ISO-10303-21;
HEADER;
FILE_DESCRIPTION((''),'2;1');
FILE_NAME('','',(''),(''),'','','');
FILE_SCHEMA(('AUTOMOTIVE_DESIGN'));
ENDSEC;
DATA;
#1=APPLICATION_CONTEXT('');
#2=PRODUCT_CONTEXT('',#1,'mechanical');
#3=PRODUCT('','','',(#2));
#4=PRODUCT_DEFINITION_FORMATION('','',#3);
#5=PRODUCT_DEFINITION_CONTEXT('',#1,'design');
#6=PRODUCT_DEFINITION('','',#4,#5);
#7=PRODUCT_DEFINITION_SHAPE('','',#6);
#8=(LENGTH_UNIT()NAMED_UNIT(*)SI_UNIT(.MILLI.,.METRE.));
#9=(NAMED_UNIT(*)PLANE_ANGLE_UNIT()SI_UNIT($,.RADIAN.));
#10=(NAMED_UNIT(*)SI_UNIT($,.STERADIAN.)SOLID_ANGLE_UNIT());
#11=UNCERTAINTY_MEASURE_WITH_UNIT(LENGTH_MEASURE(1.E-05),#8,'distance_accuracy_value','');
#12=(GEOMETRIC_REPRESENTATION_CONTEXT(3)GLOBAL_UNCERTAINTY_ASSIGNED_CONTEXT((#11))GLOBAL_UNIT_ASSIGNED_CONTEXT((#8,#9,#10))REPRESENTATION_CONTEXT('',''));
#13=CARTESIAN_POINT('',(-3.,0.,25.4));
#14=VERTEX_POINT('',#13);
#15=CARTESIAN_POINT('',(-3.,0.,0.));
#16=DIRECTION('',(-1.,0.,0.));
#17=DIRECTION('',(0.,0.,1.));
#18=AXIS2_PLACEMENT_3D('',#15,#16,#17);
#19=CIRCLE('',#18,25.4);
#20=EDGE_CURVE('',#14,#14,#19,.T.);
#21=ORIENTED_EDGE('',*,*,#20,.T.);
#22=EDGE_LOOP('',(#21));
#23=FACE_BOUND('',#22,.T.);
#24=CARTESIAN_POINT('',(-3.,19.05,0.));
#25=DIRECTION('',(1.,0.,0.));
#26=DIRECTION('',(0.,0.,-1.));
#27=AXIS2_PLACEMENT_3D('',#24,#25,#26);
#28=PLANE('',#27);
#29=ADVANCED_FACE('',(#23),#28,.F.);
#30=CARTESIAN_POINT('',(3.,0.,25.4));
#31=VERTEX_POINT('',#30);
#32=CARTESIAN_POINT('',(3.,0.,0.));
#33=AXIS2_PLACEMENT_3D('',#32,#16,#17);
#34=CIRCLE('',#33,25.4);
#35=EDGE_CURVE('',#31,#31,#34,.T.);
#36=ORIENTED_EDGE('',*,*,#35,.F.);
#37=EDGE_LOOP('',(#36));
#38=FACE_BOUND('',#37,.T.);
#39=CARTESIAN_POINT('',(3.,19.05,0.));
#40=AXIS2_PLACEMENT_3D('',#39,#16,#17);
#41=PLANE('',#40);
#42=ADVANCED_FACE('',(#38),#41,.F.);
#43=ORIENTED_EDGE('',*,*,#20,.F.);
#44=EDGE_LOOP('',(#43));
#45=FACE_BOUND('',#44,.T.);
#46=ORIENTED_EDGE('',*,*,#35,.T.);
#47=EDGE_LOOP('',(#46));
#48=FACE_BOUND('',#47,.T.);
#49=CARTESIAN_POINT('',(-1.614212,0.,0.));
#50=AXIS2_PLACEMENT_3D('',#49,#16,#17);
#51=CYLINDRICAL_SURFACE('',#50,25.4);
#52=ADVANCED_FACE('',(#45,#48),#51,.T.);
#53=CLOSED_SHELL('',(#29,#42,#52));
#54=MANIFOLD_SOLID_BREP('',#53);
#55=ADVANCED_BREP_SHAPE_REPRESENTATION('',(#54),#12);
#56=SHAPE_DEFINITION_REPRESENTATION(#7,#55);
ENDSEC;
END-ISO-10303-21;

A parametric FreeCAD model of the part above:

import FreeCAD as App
import Part
import Sketcher
Q = App.Units.Quantity

doc = App.newDocument("Part")
body = doc.addObject("PartDesign::Body", "Body")

sketch1 = doc.addObject("Sketcher::SketchObject", "Sketch")
body.addObject(sketch1)
sketch1.AttachmentSupport = (doc.XY_Plane, [""])
sketch1.MapMode = "FlatFace"
sketch1.addGeometry([
    Part.LineSegment(App.Vector(-3, 19.05, 0), App.Vector(-3, 0, 0)),
    Part.LineSegment(App.Vector(-3, 0, 0), App.Vector(3, 0, 0)),
    Part.LineSegment(App.Vector(3, 0, 0), App.Vector(3, 19.05, 0)),
    Part.LineSegment(App.Vector(3, 19.05, 0), App.Vector(-3, 19.05, 0)),
], False)
sketch1.addConstraint([
    Sketcher.Constraint("Coincident", 0, 2, 1, 1),
    Sketcher.Constraint("Coincident", 1, 2, 2, 1),
    Sketcher.Constraint("Coincident", 2, 2, 3, 1),
    Sketcher.Constraint("Coincident", 3, 2, 0, 1),
    Sketcher.Constraint("Vertical", 0),
    Sketcher.Constraint("Horizontal", 1),
    Sketcher.Constraint("Vertical", 2),
    Sketcher.Constraint("Horizontal", 3),
    Sketcher.Constraint("Symmetric", 0, 2, 1, 2, -1, 1),
    Sketcher.Constraint("DistanceY", 0, 2, 0, 1, Q("0.75 in")),
    Sketcher.Constraint("DistanceX", 1, 1, 1, 2, 6.0),
])
revolution = doc.addObject("PartDesign::Revolution", "Revolution")
body.addObject(revolution)
revolution.Profile = sketch1
revolution.ReferenceAxis = (sketch1, ["H_Axis"])
revolution.Angle = 360

sketch2 = doc.addObject("Sketcher::SketchObject", "Sketch001")
body.addObject(sketch2)
sketch2.AttachmentSupport = (doc.XY_Plane, [""])
sketch2.MapMode = "FlatFace"
sketch2.addGeometry([
    Part.LineSegment(App.Vector(-3, 25.4, 0), App.Vector(-3, 19.05, 0)),
    Part.LineSegment(App.Vector(-3, 19.05, 0), App.Vector(3, 19.05, 0)),
    Part.LineSegment(App.Vector(3, 19.05, 0), App.Vector(3, 25.4, 0)),
    Part.LineSegment(App.Vector(3, 25.4, 0), App.Vector(-3, 25.4, 0)),
], False)
sketch2.addConstraint([
    Sketcher.Constraint("Coincident", 0, 2, 1, 1),
    Sketcher.Constraint("Coincident", 1, 2, 2, 1),
    Sketcher.Constraint("Coincident", 2, 2, 3, 1),
    Sketcher.Constraint("Coincident", 3, 2, 0, 1),
    Sketcher.Constraint("Vertical", 0),
    Sketcher.Constraint("Horizontal", 1),
    Sketcher.Constraint("Vertical", 2),
    Sketcher.Constraint("Horizontal", 3),
    Sketcher.Constraint("DistanceY", -1, 1, 2, 2, Q("1 in")),
    Sketcher.Constraint("DistanceY", 0, 2, 0, 1, Q("0.25 in")),
    Sketcher.Constraint("DistanceX", 1, 1, 1, 2, 6.0),
    Sketcher.Constraint("DistanceX", 0, 2, -1, 1, 3.0),
])
revolution2 = doc.addObject("PartDesign::Revolution", "Revolution001")
body.addObject(revolution2)
revolution2.Profile = sketch2
revolution2.ReferenceAxis = (sketch2, ["H_Axis"])
revolution2.Angle = 360

doc.recompute()
